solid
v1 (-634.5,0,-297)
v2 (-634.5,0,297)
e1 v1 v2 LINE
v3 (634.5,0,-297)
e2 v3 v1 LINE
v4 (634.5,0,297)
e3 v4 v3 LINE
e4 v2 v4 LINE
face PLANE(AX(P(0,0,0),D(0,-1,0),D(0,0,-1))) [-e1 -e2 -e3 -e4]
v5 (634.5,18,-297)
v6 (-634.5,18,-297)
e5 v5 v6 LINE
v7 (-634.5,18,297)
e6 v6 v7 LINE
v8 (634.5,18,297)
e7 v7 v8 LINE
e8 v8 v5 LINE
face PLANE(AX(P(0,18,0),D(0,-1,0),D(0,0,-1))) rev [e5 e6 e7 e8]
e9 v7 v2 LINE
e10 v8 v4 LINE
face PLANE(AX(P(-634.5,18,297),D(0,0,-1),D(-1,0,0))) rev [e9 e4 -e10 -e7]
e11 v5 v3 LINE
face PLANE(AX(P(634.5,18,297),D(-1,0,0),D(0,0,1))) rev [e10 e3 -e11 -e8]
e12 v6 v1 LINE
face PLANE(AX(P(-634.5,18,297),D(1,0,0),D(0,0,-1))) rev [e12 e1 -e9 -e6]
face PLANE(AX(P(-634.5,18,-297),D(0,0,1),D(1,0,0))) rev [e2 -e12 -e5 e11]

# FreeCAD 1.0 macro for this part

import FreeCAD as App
import Part
import Sketcher

V = App.Vector

doc = App.newDocument("Part")
body = doc.addObject("PartDesign::Body", "Body")

sketch1 = body.newObject("Sketcher::SketchObject", "Sketch")
sketch1.AttachmentSupport = (doc.getObject("XZ_Plane"), [""])
sketch1.MapMode = "FlatFace"
sketch1.addGeometry([
    Part.LineSegment(V(-634, -297, 0), V(-634, 297, 0)),
    Part.LineSegment(V(-634, 297, 0), V(634, 297, 0)),
    Part.LineSegment(V(634, 297, 0), V(634, -297, 0)),
    Part.LineSegment(V(634, -297, 0), V(-634, -297, 0)),
], False)
sketch1.addConstraint([
    Sketcher.Constraint("Coincident", 0, 2, 1, 1),
    Sketcher.Constraint("Coincident", 1, 2, 2, 1),
    Sketcher.Constraint("Coincident", 2, 2, 3, 1),
    Sketcher.Constraint("Coincident", 3, 2, 0, 1),
    Sketcher.Constraint("Vertical", 0),
    Sketcher.Constraint("Horizontal", 1),
    Sketcher.Constraint("Vertical", 2),
    Sketcher.Constraint("Horizontal", 3),
    Sketcher.Constraint("Symmetric", 0, 2, 2, 2, -1, 1),
    Sketcher.Constraint("DistanceX", 1, 1, 1, 2, 1269.0),
    Sketcher.Constraint("DistanceY", 0, 1, 0, 2, 594.0),
])
pad1 = body.newObject("PartDesign::Pad", "Pad")
pad1.Profile = sketch1
pad1.Length = 18
pad1.Reversed = True

doc.recompute()
